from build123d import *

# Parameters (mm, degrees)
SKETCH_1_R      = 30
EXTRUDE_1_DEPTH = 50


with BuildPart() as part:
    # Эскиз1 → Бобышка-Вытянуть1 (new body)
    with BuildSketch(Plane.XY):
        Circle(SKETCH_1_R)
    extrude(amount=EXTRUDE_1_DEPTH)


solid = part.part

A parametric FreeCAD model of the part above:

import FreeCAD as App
import Part
import Sketcher
from FreeCAD import Vector

doc = App.newDocument("Part")
body = doc.addObject("PartDesign::Body", "Body")

# Sketch on XY plane
sketch1 = doc.addObject("Sketcher::SketchObject", "Sketch")
body.addObject(sketch1)
sketch1.AttachmentSupport = (doc.XY_Plane, [""])
sketch1.MapMode = "FlatFace"
sketch1.addGeometry(Part.Circle(Vector(0, 0, 0), Vector(0, 0, 1), 30), False)
sketch1.addConstraint([
    Sketcher.Constraint("Coincident", 0, 3, -1, 1),
    Sketcher.Constraint("Diameter", 0, 60.0),
])
pad1 = doc.addObject("PartDesign::Pad", "Pad")
body.addObject(pad1)
pad1.Profile = sketch1
pad1.Length = 50

doc.recompute()
